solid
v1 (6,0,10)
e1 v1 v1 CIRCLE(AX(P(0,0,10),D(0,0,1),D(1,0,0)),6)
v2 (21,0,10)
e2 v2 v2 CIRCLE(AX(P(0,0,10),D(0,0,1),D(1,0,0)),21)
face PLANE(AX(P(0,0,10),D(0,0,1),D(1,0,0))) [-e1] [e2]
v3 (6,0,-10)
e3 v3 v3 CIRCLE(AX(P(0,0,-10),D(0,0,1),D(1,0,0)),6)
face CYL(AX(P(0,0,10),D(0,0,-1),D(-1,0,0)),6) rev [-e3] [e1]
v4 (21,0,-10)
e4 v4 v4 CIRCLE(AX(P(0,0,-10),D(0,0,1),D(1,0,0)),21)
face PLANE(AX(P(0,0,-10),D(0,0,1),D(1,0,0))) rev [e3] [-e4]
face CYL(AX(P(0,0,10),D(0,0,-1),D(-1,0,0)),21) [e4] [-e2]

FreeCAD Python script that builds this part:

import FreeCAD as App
import Part
import Sketcher
from FreeCAD import Vector
Q = App.Units.Quantity

doc = App.newDocument("Part")
body = doc.addObject("PartDesign::Body", "Body")

sketch1 = body.newObject("Sketcher::SketchObject", "Sketch")
sketch1.AttachmentSupport = (doc.getObject("XY_Plane"), [""])
sketch1.MapMode = "FlatFace"
sketch1.addGeometry(Part.Circle(Vector(0, 0, 0), Vector(0, 0, 1), 21), False)
sketch1.addGeometry(Part.Circle(Vector(0, 0, 0), Vector(0, 0, 1), 6), False)
sketch1.addConstraint(Sketcher.Constraint("Coincident", 0, 3, -1, 1))
sketch1.addConstraint(Sketcher.Constraint("Coincident", 1, 3, -1, 1))
sketch1.addConstraint(Sketcher.Constraint("Diameter", 0, Q("42 mm")))
sketch1.addConstraint(Sketcher.Constraint("Diameter", 1, Q("12 mm")))
pad1 = body.newObject("PartDesign::Pad", "Pad")
pad1.Profile = sketch1
pad1.Length = 20
pad1.Midplane = True

doc.recompute()
